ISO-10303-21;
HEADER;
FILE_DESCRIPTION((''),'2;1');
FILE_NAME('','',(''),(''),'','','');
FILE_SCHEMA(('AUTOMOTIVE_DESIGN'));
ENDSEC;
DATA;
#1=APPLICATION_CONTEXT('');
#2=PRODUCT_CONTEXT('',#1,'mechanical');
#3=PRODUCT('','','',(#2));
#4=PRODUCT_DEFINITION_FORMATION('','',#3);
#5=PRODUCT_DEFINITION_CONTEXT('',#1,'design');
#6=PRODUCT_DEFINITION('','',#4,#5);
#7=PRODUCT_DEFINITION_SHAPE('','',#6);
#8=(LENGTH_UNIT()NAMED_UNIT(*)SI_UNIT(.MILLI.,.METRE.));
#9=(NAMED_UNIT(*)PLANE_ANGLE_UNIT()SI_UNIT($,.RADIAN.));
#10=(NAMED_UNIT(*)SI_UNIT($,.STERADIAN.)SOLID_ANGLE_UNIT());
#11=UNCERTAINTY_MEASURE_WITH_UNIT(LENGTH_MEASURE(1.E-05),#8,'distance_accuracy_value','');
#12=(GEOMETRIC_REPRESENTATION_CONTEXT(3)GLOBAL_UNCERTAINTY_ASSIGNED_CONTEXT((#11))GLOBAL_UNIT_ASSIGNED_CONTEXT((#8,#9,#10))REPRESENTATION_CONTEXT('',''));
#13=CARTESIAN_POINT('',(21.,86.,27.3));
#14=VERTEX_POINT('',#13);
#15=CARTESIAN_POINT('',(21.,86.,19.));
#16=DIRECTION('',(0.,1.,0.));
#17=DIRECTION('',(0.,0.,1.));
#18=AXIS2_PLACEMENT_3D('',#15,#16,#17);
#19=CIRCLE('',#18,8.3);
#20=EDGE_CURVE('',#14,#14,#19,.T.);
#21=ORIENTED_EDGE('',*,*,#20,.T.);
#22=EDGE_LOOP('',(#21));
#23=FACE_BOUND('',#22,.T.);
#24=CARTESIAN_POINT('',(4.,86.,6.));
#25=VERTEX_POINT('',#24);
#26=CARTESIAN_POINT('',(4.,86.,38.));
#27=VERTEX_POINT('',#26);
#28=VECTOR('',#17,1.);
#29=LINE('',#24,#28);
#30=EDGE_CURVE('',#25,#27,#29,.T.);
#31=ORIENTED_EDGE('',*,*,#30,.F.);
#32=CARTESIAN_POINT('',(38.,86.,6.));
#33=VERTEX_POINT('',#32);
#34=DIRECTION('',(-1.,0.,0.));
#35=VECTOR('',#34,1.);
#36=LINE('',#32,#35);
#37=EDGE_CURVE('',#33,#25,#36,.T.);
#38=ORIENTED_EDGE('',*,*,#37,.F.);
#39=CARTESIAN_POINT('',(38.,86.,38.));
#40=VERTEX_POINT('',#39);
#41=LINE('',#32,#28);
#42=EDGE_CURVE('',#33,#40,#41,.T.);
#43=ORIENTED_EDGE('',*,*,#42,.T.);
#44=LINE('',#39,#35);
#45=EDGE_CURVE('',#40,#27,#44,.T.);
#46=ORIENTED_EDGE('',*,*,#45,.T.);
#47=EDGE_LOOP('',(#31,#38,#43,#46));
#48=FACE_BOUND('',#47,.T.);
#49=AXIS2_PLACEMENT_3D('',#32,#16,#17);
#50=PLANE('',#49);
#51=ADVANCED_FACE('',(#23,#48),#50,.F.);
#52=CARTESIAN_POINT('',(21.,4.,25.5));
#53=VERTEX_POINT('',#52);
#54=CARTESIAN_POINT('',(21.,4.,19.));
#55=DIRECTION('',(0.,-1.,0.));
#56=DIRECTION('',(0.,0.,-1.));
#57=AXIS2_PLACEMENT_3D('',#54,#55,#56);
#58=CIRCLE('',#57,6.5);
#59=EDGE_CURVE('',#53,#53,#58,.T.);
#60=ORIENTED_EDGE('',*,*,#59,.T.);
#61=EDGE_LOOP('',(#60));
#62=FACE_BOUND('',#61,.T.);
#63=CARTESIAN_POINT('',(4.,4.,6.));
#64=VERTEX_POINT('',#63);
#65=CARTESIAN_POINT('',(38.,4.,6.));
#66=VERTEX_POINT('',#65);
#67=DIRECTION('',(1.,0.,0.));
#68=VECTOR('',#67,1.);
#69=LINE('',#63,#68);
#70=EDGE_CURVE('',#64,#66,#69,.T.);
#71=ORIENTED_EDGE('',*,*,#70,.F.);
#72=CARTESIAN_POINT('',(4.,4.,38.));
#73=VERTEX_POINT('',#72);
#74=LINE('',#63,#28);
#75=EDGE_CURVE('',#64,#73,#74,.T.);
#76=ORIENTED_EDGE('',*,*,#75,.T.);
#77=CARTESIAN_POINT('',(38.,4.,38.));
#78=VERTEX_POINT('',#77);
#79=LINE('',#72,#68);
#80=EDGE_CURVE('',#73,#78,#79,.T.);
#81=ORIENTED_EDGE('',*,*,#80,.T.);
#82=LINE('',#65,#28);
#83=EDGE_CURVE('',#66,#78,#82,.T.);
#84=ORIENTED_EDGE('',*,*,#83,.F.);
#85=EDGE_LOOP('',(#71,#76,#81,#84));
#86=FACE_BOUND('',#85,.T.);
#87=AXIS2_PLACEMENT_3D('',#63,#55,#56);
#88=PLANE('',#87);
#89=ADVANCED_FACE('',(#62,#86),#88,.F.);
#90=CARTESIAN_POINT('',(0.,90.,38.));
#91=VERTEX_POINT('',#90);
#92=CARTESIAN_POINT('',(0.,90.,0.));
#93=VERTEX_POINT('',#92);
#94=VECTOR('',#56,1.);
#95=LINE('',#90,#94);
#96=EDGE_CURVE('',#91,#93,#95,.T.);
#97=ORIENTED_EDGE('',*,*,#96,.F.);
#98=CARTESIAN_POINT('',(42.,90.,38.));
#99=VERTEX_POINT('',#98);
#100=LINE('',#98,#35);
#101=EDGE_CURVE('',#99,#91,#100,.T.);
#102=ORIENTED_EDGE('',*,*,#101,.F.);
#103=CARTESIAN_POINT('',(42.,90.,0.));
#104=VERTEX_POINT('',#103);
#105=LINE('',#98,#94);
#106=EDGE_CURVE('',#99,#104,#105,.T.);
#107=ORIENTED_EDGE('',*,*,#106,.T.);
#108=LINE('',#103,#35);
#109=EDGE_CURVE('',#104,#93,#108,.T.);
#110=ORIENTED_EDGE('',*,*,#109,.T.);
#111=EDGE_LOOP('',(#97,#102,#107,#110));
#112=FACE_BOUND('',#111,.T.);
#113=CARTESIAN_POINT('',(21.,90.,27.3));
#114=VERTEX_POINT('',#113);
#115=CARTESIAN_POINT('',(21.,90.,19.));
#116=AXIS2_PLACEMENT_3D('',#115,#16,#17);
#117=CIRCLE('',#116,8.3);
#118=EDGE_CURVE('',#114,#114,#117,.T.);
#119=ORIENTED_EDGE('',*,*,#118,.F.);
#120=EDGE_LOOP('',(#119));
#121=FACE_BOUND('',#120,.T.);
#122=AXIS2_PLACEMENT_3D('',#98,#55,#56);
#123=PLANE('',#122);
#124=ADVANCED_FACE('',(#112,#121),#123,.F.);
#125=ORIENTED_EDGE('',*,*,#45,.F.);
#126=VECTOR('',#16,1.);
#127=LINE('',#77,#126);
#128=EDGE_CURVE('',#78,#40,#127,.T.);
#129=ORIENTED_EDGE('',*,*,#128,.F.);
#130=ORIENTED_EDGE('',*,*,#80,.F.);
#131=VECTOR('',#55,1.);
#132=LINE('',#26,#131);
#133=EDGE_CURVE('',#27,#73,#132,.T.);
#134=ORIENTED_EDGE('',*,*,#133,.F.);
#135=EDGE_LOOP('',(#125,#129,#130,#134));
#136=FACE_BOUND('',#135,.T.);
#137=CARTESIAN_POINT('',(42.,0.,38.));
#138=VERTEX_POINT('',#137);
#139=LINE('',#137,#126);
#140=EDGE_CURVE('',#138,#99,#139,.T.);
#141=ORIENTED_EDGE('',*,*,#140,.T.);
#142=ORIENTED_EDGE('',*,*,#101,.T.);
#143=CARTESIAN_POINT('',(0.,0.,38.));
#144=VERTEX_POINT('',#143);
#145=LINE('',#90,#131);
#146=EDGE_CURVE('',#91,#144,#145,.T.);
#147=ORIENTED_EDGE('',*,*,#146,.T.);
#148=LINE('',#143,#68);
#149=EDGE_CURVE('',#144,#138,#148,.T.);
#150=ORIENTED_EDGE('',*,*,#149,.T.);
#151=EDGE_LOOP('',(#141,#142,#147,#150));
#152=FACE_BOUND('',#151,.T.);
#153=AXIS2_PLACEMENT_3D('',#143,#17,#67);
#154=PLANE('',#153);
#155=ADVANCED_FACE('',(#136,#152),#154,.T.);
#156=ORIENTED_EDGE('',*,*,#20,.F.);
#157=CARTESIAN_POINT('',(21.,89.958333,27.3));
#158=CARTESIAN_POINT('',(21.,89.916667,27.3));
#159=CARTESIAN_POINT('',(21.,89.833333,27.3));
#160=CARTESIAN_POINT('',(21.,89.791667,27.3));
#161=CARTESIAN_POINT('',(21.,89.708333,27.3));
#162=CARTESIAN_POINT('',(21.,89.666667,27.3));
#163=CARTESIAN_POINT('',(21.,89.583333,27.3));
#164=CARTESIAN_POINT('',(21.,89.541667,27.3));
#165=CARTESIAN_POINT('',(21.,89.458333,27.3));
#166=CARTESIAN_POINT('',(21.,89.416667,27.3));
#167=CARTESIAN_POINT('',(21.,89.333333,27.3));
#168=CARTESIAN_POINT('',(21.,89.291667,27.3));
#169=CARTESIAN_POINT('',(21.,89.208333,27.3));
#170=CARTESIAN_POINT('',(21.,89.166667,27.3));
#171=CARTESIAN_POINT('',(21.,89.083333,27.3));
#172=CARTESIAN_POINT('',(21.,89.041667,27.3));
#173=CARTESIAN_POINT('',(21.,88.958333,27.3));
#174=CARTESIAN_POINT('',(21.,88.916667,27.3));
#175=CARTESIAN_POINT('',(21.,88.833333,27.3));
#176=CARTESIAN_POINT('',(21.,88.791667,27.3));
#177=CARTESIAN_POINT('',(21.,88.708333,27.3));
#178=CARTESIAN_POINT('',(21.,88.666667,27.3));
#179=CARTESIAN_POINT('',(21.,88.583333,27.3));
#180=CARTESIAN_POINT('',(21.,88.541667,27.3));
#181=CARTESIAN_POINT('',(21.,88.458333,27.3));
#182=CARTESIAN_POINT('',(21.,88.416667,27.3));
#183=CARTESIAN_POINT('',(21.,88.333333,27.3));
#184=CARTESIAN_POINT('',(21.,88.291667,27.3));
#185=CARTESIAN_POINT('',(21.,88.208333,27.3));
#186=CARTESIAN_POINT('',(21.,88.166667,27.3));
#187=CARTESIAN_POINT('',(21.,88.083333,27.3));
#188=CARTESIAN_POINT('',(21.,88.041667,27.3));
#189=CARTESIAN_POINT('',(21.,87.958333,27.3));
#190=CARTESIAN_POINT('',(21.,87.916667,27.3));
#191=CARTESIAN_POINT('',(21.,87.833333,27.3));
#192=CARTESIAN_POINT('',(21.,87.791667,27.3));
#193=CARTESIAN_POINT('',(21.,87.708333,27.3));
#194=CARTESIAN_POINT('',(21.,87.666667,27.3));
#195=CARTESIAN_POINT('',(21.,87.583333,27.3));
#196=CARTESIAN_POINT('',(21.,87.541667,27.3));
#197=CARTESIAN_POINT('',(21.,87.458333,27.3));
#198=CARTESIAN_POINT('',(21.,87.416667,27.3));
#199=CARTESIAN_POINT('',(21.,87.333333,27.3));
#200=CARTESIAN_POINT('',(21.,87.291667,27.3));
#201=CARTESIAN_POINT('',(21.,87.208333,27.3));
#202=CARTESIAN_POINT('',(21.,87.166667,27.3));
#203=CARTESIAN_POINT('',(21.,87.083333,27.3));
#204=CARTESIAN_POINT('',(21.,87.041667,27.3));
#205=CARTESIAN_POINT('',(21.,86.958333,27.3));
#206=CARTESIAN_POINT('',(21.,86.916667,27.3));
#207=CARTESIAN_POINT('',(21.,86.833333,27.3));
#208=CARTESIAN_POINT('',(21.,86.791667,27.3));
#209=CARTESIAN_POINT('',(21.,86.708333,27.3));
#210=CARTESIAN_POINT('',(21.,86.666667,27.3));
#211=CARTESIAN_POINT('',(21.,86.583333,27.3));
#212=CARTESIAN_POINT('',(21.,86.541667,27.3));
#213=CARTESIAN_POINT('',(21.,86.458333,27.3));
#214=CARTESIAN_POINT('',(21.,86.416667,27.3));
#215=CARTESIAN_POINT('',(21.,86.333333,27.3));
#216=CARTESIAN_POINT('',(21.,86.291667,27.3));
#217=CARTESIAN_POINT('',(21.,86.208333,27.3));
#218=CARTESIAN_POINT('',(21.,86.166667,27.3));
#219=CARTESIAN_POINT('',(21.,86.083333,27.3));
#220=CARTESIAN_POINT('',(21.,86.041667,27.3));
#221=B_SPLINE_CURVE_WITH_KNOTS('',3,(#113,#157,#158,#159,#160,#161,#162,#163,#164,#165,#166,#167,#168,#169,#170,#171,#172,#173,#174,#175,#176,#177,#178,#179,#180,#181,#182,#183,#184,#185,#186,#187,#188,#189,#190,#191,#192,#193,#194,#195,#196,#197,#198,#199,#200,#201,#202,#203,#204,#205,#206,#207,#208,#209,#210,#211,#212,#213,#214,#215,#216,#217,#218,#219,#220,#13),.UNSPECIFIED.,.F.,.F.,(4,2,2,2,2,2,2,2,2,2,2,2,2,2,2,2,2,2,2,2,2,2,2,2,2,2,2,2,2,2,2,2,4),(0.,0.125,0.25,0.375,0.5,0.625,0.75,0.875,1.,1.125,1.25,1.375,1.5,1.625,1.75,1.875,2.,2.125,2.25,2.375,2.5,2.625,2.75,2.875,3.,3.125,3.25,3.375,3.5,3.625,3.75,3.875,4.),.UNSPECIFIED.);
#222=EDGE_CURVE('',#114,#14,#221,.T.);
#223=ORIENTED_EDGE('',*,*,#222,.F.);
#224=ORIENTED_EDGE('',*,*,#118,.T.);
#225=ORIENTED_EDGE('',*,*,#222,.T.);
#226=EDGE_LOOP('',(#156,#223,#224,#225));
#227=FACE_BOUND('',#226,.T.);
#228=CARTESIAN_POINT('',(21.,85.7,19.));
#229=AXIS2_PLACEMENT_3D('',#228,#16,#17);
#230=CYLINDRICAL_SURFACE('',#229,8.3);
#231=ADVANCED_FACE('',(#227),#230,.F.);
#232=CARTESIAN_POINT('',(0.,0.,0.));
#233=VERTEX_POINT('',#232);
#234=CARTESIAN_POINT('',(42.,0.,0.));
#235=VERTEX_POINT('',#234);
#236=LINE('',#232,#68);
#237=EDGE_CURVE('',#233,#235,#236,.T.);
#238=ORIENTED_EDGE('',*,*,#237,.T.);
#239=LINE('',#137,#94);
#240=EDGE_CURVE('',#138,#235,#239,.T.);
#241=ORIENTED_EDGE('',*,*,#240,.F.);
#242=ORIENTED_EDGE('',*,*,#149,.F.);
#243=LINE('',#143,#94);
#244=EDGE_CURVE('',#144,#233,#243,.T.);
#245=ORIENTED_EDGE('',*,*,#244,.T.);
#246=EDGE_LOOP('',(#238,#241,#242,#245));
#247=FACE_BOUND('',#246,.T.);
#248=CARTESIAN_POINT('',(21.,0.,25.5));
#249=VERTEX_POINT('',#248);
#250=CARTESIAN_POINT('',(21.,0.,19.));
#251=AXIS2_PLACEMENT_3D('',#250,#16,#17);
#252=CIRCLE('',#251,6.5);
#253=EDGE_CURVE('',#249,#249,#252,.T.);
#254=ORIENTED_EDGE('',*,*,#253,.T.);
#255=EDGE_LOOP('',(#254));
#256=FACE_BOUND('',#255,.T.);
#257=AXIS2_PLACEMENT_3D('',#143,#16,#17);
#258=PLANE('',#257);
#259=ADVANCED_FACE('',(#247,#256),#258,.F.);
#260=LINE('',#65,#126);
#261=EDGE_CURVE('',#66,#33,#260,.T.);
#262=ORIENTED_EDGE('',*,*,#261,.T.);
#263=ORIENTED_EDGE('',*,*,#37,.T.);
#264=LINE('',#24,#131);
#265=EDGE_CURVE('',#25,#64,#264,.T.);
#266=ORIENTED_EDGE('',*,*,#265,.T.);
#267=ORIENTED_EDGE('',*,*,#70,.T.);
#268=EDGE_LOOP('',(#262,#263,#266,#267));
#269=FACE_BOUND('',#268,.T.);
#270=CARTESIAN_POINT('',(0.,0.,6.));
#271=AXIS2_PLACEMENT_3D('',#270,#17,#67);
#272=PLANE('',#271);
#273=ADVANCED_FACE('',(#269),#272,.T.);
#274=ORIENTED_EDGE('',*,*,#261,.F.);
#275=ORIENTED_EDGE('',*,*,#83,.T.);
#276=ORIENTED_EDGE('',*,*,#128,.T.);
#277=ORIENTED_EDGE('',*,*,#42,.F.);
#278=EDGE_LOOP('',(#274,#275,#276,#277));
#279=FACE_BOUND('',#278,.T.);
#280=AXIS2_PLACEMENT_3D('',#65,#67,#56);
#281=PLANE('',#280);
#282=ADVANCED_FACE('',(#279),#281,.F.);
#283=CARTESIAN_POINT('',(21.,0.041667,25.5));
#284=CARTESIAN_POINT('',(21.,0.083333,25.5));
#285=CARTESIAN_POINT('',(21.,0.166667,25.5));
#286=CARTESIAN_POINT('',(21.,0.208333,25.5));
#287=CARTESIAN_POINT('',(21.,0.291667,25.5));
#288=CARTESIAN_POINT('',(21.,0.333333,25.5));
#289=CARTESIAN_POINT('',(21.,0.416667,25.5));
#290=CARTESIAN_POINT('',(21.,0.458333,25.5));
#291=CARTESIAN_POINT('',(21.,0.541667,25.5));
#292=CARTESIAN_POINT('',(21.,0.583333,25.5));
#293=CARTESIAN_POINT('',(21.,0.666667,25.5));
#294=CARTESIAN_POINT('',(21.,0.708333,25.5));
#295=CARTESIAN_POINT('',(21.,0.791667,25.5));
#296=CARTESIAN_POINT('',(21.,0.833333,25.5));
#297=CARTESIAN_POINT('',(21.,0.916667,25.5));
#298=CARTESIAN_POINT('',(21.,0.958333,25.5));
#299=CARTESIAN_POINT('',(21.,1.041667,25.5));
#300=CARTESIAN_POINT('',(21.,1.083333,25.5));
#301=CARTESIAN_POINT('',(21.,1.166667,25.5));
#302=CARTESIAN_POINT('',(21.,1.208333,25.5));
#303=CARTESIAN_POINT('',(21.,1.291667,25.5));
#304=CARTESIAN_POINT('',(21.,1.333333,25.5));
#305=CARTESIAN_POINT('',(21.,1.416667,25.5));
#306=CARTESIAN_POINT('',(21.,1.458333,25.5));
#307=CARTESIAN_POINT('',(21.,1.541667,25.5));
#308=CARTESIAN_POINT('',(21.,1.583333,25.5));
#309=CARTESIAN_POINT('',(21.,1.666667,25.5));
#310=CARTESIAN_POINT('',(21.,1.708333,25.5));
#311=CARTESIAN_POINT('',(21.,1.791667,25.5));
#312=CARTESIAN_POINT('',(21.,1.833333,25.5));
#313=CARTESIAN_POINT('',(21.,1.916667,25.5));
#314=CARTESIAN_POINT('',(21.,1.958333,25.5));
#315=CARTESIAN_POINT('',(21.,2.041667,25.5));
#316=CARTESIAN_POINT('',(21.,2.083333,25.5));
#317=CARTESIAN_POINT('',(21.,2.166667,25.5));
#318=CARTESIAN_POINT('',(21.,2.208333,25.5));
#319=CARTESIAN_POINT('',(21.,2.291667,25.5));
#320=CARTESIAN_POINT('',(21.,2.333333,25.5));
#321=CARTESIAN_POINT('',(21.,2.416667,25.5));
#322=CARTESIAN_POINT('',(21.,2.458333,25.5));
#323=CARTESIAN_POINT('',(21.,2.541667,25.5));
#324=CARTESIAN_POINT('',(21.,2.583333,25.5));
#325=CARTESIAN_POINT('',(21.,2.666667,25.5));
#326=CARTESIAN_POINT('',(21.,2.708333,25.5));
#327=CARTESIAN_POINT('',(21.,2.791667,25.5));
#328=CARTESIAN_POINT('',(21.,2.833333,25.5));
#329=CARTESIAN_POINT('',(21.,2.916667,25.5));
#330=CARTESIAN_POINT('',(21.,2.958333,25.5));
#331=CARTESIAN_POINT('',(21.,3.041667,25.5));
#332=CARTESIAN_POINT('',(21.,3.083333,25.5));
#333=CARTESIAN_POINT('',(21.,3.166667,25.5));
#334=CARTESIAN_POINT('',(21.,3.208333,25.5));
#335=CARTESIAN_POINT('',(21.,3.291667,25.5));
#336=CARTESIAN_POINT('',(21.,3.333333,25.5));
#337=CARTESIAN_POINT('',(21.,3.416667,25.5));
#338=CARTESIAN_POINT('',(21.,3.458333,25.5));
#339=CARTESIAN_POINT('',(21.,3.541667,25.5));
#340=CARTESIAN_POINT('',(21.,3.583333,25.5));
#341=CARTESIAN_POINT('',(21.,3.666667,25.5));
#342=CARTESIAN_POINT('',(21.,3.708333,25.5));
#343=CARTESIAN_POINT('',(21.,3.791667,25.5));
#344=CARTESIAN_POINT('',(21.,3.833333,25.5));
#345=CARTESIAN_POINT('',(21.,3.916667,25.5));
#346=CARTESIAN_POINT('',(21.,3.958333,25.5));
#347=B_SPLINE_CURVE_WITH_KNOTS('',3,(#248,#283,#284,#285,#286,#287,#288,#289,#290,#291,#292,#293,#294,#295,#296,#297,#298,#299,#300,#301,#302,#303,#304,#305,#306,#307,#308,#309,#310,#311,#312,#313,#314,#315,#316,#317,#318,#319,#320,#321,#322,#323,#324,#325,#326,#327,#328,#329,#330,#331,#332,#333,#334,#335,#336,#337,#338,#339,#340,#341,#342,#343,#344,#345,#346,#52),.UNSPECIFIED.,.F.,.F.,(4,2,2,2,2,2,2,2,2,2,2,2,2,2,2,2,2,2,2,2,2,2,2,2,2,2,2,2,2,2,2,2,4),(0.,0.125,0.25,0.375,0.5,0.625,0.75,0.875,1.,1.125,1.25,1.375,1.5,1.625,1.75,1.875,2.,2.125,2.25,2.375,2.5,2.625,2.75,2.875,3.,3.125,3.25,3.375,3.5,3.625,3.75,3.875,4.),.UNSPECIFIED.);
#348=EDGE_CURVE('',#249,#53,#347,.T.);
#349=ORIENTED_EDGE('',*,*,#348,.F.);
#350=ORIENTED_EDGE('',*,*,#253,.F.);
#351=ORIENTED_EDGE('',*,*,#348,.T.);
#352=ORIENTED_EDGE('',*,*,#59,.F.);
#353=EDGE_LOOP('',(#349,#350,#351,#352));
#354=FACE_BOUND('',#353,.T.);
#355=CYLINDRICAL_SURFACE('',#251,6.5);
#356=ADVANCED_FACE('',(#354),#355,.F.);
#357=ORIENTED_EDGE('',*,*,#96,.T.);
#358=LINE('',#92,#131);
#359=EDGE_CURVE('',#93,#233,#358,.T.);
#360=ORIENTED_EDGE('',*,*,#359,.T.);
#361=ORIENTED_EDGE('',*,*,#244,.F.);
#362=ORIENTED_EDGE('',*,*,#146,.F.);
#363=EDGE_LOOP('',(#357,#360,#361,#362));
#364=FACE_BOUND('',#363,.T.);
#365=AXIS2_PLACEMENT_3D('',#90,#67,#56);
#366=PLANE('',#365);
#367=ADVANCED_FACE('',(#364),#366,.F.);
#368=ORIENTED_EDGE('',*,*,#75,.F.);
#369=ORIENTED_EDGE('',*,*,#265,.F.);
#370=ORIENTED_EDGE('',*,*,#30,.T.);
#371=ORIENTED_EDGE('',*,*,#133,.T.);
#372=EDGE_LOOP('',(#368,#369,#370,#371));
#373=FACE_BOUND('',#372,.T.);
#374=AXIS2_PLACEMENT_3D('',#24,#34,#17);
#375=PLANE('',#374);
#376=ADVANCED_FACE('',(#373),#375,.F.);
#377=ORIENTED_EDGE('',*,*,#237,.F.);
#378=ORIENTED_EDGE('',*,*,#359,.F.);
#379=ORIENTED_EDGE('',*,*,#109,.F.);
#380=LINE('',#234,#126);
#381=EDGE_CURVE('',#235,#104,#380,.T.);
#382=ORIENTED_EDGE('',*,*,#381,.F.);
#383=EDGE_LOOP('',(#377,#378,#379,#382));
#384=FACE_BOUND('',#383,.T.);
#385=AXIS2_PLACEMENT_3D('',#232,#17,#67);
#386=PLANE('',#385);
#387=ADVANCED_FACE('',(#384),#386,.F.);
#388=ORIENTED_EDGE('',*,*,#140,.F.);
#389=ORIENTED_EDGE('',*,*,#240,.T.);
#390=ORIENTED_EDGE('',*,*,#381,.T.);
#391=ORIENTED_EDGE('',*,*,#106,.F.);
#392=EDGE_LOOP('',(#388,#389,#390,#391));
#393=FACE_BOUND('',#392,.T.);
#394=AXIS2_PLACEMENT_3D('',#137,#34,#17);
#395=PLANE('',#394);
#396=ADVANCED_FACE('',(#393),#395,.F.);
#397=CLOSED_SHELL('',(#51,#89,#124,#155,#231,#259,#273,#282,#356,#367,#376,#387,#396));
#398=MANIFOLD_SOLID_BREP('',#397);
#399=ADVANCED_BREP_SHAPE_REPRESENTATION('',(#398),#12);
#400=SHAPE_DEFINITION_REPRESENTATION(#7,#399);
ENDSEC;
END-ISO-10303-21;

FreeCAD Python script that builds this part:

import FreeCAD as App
import Part
import Sketcher

V = App.Vector

doc = App.newDocument("Part")
params = doc.addObject("Spreadsheet::Sheet", "Params")
for row, (alias, value) in enumerate([
    ("sketch1_width", "42 mm"),
    ("sketch1_height", "90 mm"),
    ("pad1_length", "38 mm"),
    ("sketch2_width", "34 mm"),
    ("sketch2_height", "82 mm"),
    ("pocket1_length", "32 mm"),
    ("sketch3_diameter", "13 mm"),
    ("sketch4_diameter", "16.6 mm"),
    ("pocket3_length", "4.3 mm"),
], start=1):
    params.set(f"A{row}", alias)
    params.set(f"B{row}", "=" + value)
    params.setAlias(f"B{row}", alias)

body = doc.addObject("PartDesign::Body", "Body")

# Sketch on XY plane
sketch1 = doc.addObject("Sketcher::SketchObject", "Sketch")
body.addObject(sketch1)
sketch1.AttachmentSupport = (doc.XY_Plane, [""])
sketch1.MapMode = "FlatFace"
sketch1.addGeometry(Part.LineSegment(V(0, 90, 0), V(0, 0, 0)), False)
sketch1.addGeometry(Part.LineSegment(V(0, 0, 0), V(42, 0, 0)), False)
sketch1.addGeometry(Part.LineSegment(V(42, 0, 0), V(42, 90, 0)), False)
sketch1.addGeometry(Part.LineSegment(V(42, 90, 0), V(0, 90, 0)), False)
sketch1.addConstraint(Sketcher.Constraint("Coincident", 0, 2, 1, 1))
sketch1.addConstraint(Sketcher.Constraint("Coincident", 1, 2, 2, 1))
sketch1.addConstraint(Sketcher.Constraint("Coincident", 2, 2, 3, 1))
sketch1.addConstraint(Sketcher.Constraint("Coincident", 3, 2, 0, 1))
sketch1.addConstraint(Sketcher.Constraint("Vertical", 0))
sketch1.addConstraint(Sketcher.Constraint("Horizontal", 1))
sketch1.addConstraint(Sketcher.Constraint("Vertical", 2))
sketch1.addConstraint(Sketcher.Constraint("Horizontal", 3))
sketch1.addConstraint(Sketcher.Constraint("Coincident", 0, 2, -1, 1))
sketch1.addConstraint(Sketcher.Constraint("DistanceX", 1, 1, 1, 2, 42.0))
sketch1.addConstraint(Sketcher.Constraint("DistanceY", 0, 2, 0, 1, 90.0))
sketch1.setExpression("Constraints[9]", "Params.sketch1_width")
sketch1.setExpression("Constraints[10]", "Params.sketch1_height")
pad1 = doc.addObject("PartDesign::Pad", "Pad")
body.addObject(pad1)
pad1.Profile = sketch1
pad1.setExpression("Length", "Params.pad1_length")

# Sketch on XY plane
sketch2 = doc.addObject("Sketcher::SketchObject", "Sketch001")
body.addObject(sketch2)
sketch2.AttachmentSupport = (doc.XY_Plane, [""])
sketch2.MapMode = "FlatFace"
sketch2.AttachmentOffset = App.Placement(V(0, 0, 38), App.Rotation())
sketch2.addGeometry(Part.LineSegment(V(4, 86, 0), V(4, 4, 0)), False)
sketch2.addGeometry(Part.LineSegment(V(4, 4, 0), V(38, 4, 0)), False)
sketch2.addGeometry(Part.LineSegment(V(38, 4, 0), V(38, 86, 0)), False)
sketch2.addGeometry(Part.LineSegment(V(38, 86, 0), V(4, 86, 0)), False)
sketch2.addConstraint(Sketcher.Constraint("Coincident", 0, 2, 1, 1))
sketch2.addConstraint(Sketcher.Constraint("Coincident", 1, 2, 2, 1))
sketch2.addConstraint(Sketcher.Constraint("Coincident", 2, 2, 3, 1))
sketch2.addConstraint(Sketcher.Constraint("Coincident", 3, 2, 0, 1))
sketch2.addConstraint(Sketcher.Constraint("Vertical", 0))
sketch2.addConstraint(Sketcher.Constraint("Horizontal", 1))
sketch2.addConstraint(Sketcher.Constraint("Vertical", 2))
sketch2.addConstraint(Sketcher.Constraint("Horizontal", 3))
sketch2.addConstraint(Sketcher.Constraint("DistanceX", 1, 1, 1, 2, 34.0))
sketch2.addConstraint(Sketcher.Constraint("DistanceY", 0, 2, 0, 1, 82.0))
sketch2.addConstraint(Sketcher.Constraint("DistanceX", -1, 1, 0, 2, 4.0))
sketch2.addConstraint(Sketcher.Constraint("DistanceY", -1, 1, 0, 2, 4.0))
sketch2.setExpression("Constraints[8]", "Params.sketch2_width")
sketch2.setExpression("Constraints[9]", "Params.sketch2_height")
pocket1 = doc.addObject("PartDesign::Pocket", "Pocket")
body.addObject(pocket1)
pocket1.Profile = sketch2
pocket1.setExpression("Length", "Params.pocket1_length")

# Sketch on XZ plane
sketch3 = doc.addObject("Sketcher::SketchObject", "Sketch002")
body.addObject(sketch3)
sketch3.AttachmentSupport = (doc.XZ_Plane, [""])
sketch3.MapMode = "FlatFace"
sketch3.AttachmentOffset = App.Placement(V(0, 0, -90), App.Rotation())
sketch3.addGeometry(Part.Circle(V(21, 19, 0), V(0, 0, 1), 6.5), False)
sketch3.addConstraint(Sketcher.Constraint("Diameter", 0, 13.0))
sketch3.addConstraint(Sketcher.Constraint("DistanceX", -1, 1, 0, 3, 21.0))
sketch3.addConstraint(Sketcher.Constraint("DistanceY", -1, 1, 0, 3, 19.0))
sketch3.setExpression("Constraints[0]", "Params.sketch3_diameter")
pocket2 = doc.addObject("PartDesign::Pocket", "Pocket001")
body.addObject(pocket2)
pocket2.Profile = sketch3
pocket2.Type = "ThroughAll"
pocket2.Reversed = True

# Sketch on XZ plane
sketch4 = doc.addObject("Sketcher::SketchObject", "Sketch003")
body.addObject(sketch4)
sketch4.AttachmentSupport = (doc.XZ_Plane, [""])
sketch4.MapMode = "FlatFace"
sketch4.AttachmentOffset = App.Placement(V(0, 0, -90), App.Rotation())
sketch4.addGeometry(Part.Circle(V(21, 19, 0), V(0, 0, 1), 8.3), False)
sketch4.addConstraint(Sketcher.Constraint("Diameter", 0, 16.6))
sketch4.addConstraint(Sketcher.Constraint("DistanceX", -1, 1, 0, 3, 21.0))
sketch4.addConstraint(Sketcher.Constraint("DistanceY", -1, 1, 0, 3, 19.0))
sketch4.setExpression("Constraints[0]", "Params.sketch4_diameter")
pocket3 = doc.addObject("PartDesign::Pocket", "Pocket002")
body.addObject(pocket3)
pocket3.Profile = sketch4
pocket3.setExpression("Length", "Params.pocket3_length")
pocket3.Reversed = True

doc.recompute()
